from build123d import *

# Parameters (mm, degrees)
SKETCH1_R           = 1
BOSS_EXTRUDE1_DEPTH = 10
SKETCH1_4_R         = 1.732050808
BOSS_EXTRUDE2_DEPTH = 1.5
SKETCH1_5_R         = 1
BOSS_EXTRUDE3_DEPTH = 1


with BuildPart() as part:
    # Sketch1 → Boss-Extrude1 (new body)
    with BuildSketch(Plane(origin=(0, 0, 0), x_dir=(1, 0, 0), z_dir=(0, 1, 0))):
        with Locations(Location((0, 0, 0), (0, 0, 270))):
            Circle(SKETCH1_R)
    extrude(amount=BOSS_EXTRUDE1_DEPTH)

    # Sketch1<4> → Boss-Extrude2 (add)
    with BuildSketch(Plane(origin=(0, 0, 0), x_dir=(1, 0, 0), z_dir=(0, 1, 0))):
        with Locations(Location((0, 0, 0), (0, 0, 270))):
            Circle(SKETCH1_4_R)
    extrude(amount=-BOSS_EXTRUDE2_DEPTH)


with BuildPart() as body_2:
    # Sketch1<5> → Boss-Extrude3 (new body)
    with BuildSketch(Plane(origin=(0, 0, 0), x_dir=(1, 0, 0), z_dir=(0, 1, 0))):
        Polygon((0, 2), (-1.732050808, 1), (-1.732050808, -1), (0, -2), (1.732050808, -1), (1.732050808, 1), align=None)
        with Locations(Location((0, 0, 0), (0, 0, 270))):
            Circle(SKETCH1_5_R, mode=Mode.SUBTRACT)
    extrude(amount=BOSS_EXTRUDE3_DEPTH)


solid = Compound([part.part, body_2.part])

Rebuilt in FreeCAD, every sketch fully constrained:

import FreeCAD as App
import Part
import Sketcher

V = App.Vector
Q = App.Units.Quantity


def add_polygon(sketch, points):
    """Adds a closed chain of lines whose ends are joined by coincident constraints."""
    first, n = sketch.GeometryCount, len(points)
    for a, b in zip(points, points[1:] + points[:1]):
        sketch.addGeometry(Part.LineSegment(App.Vector(*a, 0), App.Vector(*b, 0)), False)
    for i in range(n):
        sketch.addConstraint(Sketcher.Constraint("Coincident", first + i, 2, first + (i + 1) % n, 1))

doc = App.newDocument("Part")
body = doc.addObject("PartDesign::Body", "Body")

# Sketch on XZ plane
sketch1 = body.newObject("Sketcher::SketchObject", "Sketch")
sketch1.AttachmentSupport = (doc.getObject("XZ_Plane"), [""])
sketch1.MapMode = "FlatFace"
sketch1.addGeometry(Part.Circle(V(0, 0, 0), V(0, 0, 1), 1), False)
sketch1.addConstraint(Sketcher.Constraint("Coincident", 0, 3, -1, 1))
sketch1.addConstraint(Sketcher.Constraint("Diameter", 0, Q("2 mm")))
pad1 = body.newObject("PartDesign::Pad", "Pad")
pad1.Profile = sketch1
pad1.Length = 10
pad1.Reversed = True

# Sketch on XZ plane
sketch2 = body.newObject("Sketcher::SketchObject", "Sketch001")
sketch2.AttachmentSupport = (doc.getObject("XZ_Plane"), [""])
sketch2.MapMode = "FlatFace"
sketch2.addGeometry(Part.Circle(V(0, 0, 0), V(0, 0, 1), 1.7), False)
sketch2.addConstraint(Sketcher.Constraint("Coincident", 0, 3, -1, 1))
sketch2.addConstraint(Sketcher.Constraint("Diameter", 0, Q("3.464102 mm")))
pad2 = body.newObject("PartDesign::Pad", "Pad001")
pad2.Profile = sketch2
pad2.Length = 1.5
body2 = doc.addObject("PartDesign::Body", "Body001")

# Sketch on XZ plane
sketch3 = body2.newObject("Sketcher::SketchObject", "Sketch002")
sketch3.AttachmentSupport = (doc.getObject("XZ_Plane001"), [""])
sketch3.MapMode = "FlatFace"
add_polygon(sketch3, [(0, -2), (-1.7, -1), (-1.7, 1), (0, 2), (1.7, 1), (1.7, -1)])  # lines 0-5
sketch3.addGeometry(Part.Circle(V(0, 0, 0), V(0, 0, 1), 1), False)  # 6
sketch3.addConstraint(Sketcher.Constraint("Vertical", 1))
sketch3.addConstraint(Sketcher.Constraint("Vertical", 4))
sketch3.addConstraint(Sketcher.Constraint("Coincident", 6, 3, -1, 1))
sketch3.addConstraint(Sketcher.Constraint("Symmetric", 0, 2, 3, 2, -1, 1))
sketch3.addConstraint(Sketcher.Constraint("Symmetric", 2, 2, 5, 2, -1, 1))
sketch3.addConstraint(Sketcher.Constraint("PointOnObject", 2, 2, -2))
sketch3.addConstraint(Sketcher.Constraint("Parallel", 2, 5))
sketch3.addConstraint(Sketcher.Constraint("Horizontal", 1, 2, 3, 2))
sketch3.addConstraint(Sketcher.Constraint("Diameter", 6, Q("2 mm")))
sketch3.addConstraint(Sketcher.Constraint("DistanceY", 1, 1, 1, 2, Q("2 mm")))
sketch3.addConstraint(Sketcher.Constraint("Angle", 0, Q("150 deg")))
sketch3.addConstraint(Sketcher.Constraint("Distance", 0, Q("2 mm")))
pad3 = body2.newObject("PartDesign::Pad", "Pad002")
pad3.Profile = sketch3
pad3.Length = 1
pad3.Reversed = True

doc.recompute()
